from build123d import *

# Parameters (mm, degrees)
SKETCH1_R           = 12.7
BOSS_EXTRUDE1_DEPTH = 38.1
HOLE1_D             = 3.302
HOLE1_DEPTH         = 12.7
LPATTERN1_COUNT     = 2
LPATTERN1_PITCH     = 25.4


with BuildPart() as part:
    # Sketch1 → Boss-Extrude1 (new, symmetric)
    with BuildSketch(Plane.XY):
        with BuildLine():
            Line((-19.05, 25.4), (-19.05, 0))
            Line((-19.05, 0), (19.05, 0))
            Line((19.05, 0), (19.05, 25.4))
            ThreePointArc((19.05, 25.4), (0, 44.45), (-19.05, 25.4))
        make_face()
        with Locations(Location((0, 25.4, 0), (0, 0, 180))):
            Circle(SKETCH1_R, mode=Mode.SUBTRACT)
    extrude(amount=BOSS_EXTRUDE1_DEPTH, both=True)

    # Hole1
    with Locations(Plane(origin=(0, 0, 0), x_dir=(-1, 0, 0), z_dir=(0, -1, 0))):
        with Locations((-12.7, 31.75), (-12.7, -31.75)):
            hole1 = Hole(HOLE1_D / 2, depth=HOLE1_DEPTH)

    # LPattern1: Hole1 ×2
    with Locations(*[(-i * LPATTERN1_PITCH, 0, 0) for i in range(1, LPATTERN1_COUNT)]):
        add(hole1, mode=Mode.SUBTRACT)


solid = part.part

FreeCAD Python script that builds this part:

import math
import FreeCAD as App
import Part
import Sketcher

V = App.Vector
Q = App.Units.Quantity

doc = App.newDocument("Part")
body = doc.addObject("PartDesign::Body", "Body")

# Sketch on XY plane
sketch1 = body.newObject("Sketcher::SketchObject", "Sketch")
sketch1.AttachmentSupport = (doc.getObject("XY_Plane"), [""])
sketch1.MapMode = "FlatFace"
sketch1.addGeometry([
    Part.LineSegment(V(-19, 25, 0), V(-19, 0, 0)),  # 0
    Part.LineSegment(V(-19, 0, 0), V(19, 0, 0)),  # 1
    Part.LineSegment(V(19, 0, 0), V(19, 25, 0)),  # 2
    Part.ArcOfCircle(Part.Circle(V(0, 25, 0), V(0, 0, 1), 19), math.radians(0), math.radians(180)),  # 3
    Part.Circle(V(0, 25, 0), V(0, 0, 1), 13),  # 4
], False)
sketch1.addConstraint([
    Sketcher.Constraint("Coincident", 0, 2, 1, 1),
    Sketcher.Constraint("Coincident", 1, 2, 2, 1),
    Sketcher.Constraint("Tangent", 2, 2, 3, 1),
    Sketcher.Constraint("Tangent", 3, 2, 0, 1),
    Sketcher.Constraint("Vertical", 0),
    Sketcher.Constraint("Horizontal", 1),
    Sketcher.Constraint("Vertical", 2),
    Sketcher.Constraint("Coincident", 4, 3, 3, 3),
    Sketcher.Constraint("Symmetric", 0, 2, 1, 2, -1, 1),
    Sketcher.Constraint("Diameter", 4, Q("1 in")),
    Sketcher.Constraint("DistanceY", 0, 2, 0, 1, Q("1 in")),
    Sketcher.Constraint("Radius", 3, Q("0.75 in")),
])
pad1 = body.newObject("PartDesign::Pad", "Pad")
pad1.Profile = sketch1
pad1.Length = Q("3 in")
pad1.Midplane = True

# Sketch on XZ plane
sketch2 = body.newObject("Sketcher::SketchObject", "Sketch001")
sketch2.AttachmentSupport = (doc.getObject("XZ_Plane"), [""])
sketch2.MapMode = "FlatFace"
sketch2.addGeometry([
    Part.Circle(V(12.7, -31.8, 0), V(0, 0, 1), 1.7),
    Part.Circle(V(12.7, 31.8, 0), V(0, 0, 1), 1.7),
], False)
sketch2.addConstraint([
    Sketcher.Constraint("Equal", 0, 1),
    Sketcher.Constraint("Symmetric", 0, 3, 1, 3, -1),
    Sketcher.Constraint("Diameter", 0, Q("0.13 in")),
    Sketcher.Constraint("DistanceX", -1, 1, 0, 3, Q("0.5 in")),
    Sketcher.Constraint("DistanceY", 0, 3, 1, 3, Q("2.5 in")),
])
doc.recompute()
hole = body.newObject("PartDesign::Hole", "Hole")
hole.Profile = sketch2
hole.ThreadType = "None"
hole.Diameter = Q("0.13 in")
hole.DepthType = "Dimension"
hole.Depth = Q("0.5 in")
hole.DrillPoint = "Flat"
doc.recompute()

linearpattern = body.newObject("PartDesign::LinearPattern", "LinearPattern")
linearpattern.Originals = [hole]
linearpattern.Direction = (doc.getObject("X_Axis"), [""])
linearpattern.Mode = "offset"
linearpattern.Offset = Q("1 in")
linearpattern.Occurrences = 2
linearpattern.Reversed = True
body.Tip = linearpattern

doc.recompute()
